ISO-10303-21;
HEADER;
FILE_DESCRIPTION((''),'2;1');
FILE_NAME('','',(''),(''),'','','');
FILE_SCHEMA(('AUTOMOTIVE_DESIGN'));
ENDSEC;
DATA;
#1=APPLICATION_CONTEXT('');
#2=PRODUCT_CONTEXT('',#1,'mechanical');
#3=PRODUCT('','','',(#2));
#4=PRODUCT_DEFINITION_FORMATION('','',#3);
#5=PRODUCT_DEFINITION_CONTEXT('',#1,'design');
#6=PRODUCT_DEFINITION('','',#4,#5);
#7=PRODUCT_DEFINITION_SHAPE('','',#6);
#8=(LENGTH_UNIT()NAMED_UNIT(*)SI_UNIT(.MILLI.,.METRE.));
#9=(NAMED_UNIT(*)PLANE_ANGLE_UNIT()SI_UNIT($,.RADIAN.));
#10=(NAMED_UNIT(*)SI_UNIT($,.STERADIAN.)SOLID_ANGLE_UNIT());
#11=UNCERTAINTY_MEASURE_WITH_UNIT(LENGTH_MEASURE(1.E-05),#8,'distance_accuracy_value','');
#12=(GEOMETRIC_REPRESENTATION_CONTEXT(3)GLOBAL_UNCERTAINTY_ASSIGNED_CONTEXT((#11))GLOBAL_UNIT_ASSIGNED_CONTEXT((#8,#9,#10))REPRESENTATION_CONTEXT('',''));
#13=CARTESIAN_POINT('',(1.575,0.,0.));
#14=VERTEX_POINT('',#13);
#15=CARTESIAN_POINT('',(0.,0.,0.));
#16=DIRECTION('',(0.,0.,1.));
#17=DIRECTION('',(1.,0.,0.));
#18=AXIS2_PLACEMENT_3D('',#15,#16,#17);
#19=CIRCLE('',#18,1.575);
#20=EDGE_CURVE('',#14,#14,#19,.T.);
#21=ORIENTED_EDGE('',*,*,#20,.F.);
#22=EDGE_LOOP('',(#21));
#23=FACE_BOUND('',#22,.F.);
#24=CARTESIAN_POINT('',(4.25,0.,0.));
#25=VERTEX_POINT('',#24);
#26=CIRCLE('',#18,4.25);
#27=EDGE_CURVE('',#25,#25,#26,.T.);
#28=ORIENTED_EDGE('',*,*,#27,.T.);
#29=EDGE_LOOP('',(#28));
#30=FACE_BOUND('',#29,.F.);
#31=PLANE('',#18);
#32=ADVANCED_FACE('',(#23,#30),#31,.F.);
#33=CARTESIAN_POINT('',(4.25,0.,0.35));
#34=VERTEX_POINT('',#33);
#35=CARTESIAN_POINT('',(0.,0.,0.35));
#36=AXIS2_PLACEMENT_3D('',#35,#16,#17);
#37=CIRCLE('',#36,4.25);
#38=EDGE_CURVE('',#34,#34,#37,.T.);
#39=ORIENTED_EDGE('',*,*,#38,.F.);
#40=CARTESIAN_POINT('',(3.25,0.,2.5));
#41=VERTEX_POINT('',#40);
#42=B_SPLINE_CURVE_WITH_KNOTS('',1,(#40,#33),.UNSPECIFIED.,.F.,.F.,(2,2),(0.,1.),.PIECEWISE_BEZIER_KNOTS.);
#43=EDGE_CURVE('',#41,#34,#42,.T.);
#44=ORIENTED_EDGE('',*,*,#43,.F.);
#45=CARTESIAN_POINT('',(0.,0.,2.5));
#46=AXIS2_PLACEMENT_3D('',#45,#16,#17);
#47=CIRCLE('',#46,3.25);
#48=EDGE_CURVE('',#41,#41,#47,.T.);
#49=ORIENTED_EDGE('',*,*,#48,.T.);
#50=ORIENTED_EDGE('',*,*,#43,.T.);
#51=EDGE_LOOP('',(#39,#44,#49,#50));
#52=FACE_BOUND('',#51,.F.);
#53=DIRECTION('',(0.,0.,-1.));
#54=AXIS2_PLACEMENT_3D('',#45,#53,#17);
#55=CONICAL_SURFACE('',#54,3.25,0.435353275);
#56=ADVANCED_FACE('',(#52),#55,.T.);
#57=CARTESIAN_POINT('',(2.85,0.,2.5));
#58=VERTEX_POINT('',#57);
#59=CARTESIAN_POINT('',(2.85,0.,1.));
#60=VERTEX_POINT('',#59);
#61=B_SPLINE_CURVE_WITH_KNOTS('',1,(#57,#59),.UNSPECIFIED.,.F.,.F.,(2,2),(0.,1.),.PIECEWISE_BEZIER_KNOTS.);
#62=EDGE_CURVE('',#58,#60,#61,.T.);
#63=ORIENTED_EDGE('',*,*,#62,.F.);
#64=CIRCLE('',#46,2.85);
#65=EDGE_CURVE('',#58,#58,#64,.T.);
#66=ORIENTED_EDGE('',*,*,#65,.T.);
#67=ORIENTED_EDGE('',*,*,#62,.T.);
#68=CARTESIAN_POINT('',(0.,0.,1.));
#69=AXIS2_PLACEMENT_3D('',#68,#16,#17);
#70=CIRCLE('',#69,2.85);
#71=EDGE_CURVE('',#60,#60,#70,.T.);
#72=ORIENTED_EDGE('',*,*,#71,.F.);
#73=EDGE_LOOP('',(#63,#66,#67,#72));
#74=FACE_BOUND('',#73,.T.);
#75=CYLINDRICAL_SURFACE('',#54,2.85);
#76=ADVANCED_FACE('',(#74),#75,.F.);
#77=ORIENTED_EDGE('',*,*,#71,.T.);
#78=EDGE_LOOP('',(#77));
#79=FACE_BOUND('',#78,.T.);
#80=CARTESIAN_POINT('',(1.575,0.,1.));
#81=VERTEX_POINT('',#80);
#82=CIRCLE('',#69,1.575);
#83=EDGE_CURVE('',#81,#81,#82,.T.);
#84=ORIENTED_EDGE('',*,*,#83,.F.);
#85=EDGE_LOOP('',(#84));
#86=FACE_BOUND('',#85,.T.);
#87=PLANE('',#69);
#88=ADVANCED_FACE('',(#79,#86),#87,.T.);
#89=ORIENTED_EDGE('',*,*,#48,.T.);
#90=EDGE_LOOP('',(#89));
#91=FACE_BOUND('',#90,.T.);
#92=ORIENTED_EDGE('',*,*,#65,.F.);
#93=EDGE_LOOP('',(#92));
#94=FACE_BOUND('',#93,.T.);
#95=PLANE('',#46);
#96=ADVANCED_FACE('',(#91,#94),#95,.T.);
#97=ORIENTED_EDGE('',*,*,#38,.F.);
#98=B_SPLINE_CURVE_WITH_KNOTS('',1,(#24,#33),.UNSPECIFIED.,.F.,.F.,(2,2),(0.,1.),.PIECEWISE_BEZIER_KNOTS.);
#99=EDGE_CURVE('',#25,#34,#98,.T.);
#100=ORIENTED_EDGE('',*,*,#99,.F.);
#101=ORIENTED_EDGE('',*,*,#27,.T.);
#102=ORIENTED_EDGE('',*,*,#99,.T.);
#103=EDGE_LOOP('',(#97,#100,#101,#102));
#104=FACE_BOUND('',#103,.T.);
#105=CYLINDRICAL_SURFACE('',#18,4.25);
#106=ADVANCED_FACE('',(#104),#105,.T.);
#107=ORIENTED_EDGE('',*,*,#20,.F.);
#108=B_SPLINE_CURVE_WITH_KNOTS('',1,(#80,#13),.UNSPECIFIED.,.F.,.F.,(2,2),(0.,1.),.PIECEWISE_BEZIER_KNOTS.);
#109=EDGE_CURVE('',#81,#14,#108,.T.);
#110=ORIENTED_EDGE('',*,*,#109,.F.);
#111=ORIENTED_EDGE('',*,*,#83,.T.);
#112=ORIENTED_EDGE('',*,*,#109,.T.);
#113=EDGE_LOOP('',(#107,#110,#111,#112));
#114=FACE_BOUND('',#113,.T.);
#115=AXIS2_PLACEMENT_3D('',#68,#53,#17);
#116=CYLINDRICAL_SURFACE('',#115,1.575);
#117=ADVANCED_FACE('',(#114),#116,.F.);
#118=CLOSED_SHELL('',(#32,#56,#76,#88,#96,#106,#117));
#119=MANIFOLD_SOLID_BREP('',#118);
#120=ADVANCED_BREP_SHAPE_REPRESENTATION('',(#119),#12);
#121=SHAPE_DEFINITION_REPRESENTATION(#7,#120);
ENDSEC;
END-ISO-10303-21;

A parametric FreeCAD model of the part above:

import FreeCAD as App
import Part
import Sketcher

doc = App.newDocument("Part")
body = doc.addObject("PartDesign::Body", "Body")

sketch1 = doc.addObject("Sketcher::SketchObject", "Sketch")
body.addObject(sketch1)
sketch1.AttachmentSupport = (doc.XY_Plane, [""])
sketch1.MapMode = "FlatFace"
sketch1.addGeometry(Part.Circle(App.Vector(0, 0, 0), App.Vector(0, 0, 1), 4.2), False)
sketch1.addConstraint(Sketcher.Constraint("Coincident", 0, 3, -1, 1))
sketch1.addConstraint(Sketcher.Constraint("Diameter", 0, 8.5))

sketch2 = doc.addObject("Sketcher::SketchObject", "Sketch001")
body.addObject(sketch2)
sketch2.AttachmentSupport = (doc.XY_Plane, [""])
sketch2.MapMode = "FlatFace"
sketch2.AttachmentOffset = App.Placement(App.Vector(0, 0, 0.35), App.Rotation())
sketch2.addGeometry(Part.Circle(App.Vector(0, 0, 0), App.Vector(0, 0, 1), 4.2), False)
sketch2.addConstraint(Sketcher.Constraint("Coincident", 0, 3, -1, 1))
sketch2.addConstraint(Sketcher.Constraint("Diameter", 0, 8.5))

additiveloft = doc.addObject("PartDesign::AdditiveLoft", "AdditiveLoft")
body.addObject(additiveloft)
additiveloft.Profile = sketch1
additiveloft.Sections = [sketch2]

sketch3 = doc.addObject("Sketcher::SketchObject", "Sketch002")
body.addObject(sketch3)
sketch3.AttachmentSupport = (doc.XY_Plane, [""])
sketch3.MapMode = "FlatFace"
sketch3.AttachmentOffset = App.Placement(App.Vector(0, 0, 2.5), App.Rotation())
sketch3.addGeometry(Part.Circle(App.Vector(0, 0, 0), App.Vector(0, 0, 1), 3.2), False)
sketch3.addConstraint(Sketcher.Constraint("Coincident", 0, 3, -1, 1))
sketch3.addConstraint(Sketcher.Constraint("Diameter", 0, 6.5))

sketch4 = doc.addObject("Sketcher::SketchObject", "Sketch003")
body.addObject(sketch4)
sketch4.AttachmentSupport = (doc.XY_Plane, [""])
sketch4.MapMode = "FlatFace"
sketch4.AttachmentOffset = App.Placement(App.Vector(0, 0, 0.35), App.Rotation())
sketch4.addGeometry(Part.Circle(App.Vector(0, 0, 0), App.Vector(0, 0, 1), 4.2), False)
sketch4.addConstraint(Sketcher.Constraint("Coincident", 0, 3, -1, 1))
sketch4.addConstraint(Sketcher.Constraint("Diameter", 0, 8.5))

additiveloft2 = doc.addObject("PartDesign::AdditiveLoft", "AdditiveLoft001")
body.addObject(additiveloft2)
additiveloft2.Profile = sketch3
additiveloft2.Sections = [sketch4]

sketch5 = doc.addObject("Sketcher::SketchObject", "Sketch004")
body.addObject(sketch5)
sketch5.AttachmentSupport = (doc.XY_Plane, [""])
sketch5.MapMode = "FlatFace"
sketch5.AttachmentOffset = App.Placement(App.Vector(0, 0, 2.5), App.Rotation())
sketch5.addGeometry(Part.Circle(App.Vector(0, 0, 0), App.Vector(0, 0, 1), 2.9), False)
sketch5.addConstraint(Sketcher.Constraint("Coincident", 0, 3, -1, 1))
sketch5.addConstraint(Sketcher.Constraint("Diameter", 0, 5.7))

sketch6 = doc.addObject("Sketcher::SketchObject", "Sketch005")
body.addObject(sketch6)
sketch6.AttachmentSupport = (doc.XY_Plane, [""])
sketch6.MapMode = "FlatFace"
sketch6.AttachmentOffset = App.Placement(App.Vector(0, 0, 1), App.Rotation())
sketch6.addGeometry(Part.Circle(App.Vector(0, 0, 0), App.Vector(0, 0, 1), 2.9), False)
sketch6.addConstraint(Sketcher.Constraint("Coincident", 0, 3, -1, 1))
sketch6.addConstraint(Sketcher.Constraint("Diameter", 0, 5.7))

subtractiveloft = doc.addObject("PartDesign::SubtractiveLoft", "SubtractiveLoft")
body.addObject(subtractiveloft)
subtractiveloft.Profile = sketch5
subtractiveloft.Sections = [sketch6]

sketch7 = doc.addObject("Sketcher::SketchObject", "Sketch006")
body.addObject(sketch7)
sketch7.AttachmentSupport = (doc.XY_Plane, [""])
sketch7.MapMode = "FlatFace"
sketch7.AttachmentOffset = App.Placement(App.Vector(0, 0, 1), App.Rotation())
sketch7.addGeometry(Part.Circle(App.Vector(0, 0, 0), App.Vector(0, 0, 1), 1.6), False)
sketch7.addConstraint(Sketcher.Constraint("Coincident", 0, 3, -1, 1))
sketch7.addConstraint(Sketcher.Constraint("Diameter", 0, 3.15))

sketch8 = doc.addObject("Sketcher::SketchObject", "Sketch007")
body.addObject(sketch8)
sketch8.AttachmentSupport = (doc.XY_Plane, [""])
sketch8.MapMode = "FlatFace"
sketch8.addGeometry(Part.Circle(App.Vector(0, 0, 0), App.Vector(0, 0, 1), 1.6), False)
sketch8.addConstraint(Sketcher.Constraint("Coincident", 0, 3, -1, 1))
sketch8.addConstraint(Sketcher.Constraint("Diameter", 0, 3.15))

subtractiveloft2 = doc.addObject("PartDesign::SubtractiveLoft", "SubtractiveLoft001")
body.addObject(subtractiveloft2)
subtractiveloft2.Profile = sketch7
subtractiveloft2.Sections = [sketch8]

doc.recompute()
